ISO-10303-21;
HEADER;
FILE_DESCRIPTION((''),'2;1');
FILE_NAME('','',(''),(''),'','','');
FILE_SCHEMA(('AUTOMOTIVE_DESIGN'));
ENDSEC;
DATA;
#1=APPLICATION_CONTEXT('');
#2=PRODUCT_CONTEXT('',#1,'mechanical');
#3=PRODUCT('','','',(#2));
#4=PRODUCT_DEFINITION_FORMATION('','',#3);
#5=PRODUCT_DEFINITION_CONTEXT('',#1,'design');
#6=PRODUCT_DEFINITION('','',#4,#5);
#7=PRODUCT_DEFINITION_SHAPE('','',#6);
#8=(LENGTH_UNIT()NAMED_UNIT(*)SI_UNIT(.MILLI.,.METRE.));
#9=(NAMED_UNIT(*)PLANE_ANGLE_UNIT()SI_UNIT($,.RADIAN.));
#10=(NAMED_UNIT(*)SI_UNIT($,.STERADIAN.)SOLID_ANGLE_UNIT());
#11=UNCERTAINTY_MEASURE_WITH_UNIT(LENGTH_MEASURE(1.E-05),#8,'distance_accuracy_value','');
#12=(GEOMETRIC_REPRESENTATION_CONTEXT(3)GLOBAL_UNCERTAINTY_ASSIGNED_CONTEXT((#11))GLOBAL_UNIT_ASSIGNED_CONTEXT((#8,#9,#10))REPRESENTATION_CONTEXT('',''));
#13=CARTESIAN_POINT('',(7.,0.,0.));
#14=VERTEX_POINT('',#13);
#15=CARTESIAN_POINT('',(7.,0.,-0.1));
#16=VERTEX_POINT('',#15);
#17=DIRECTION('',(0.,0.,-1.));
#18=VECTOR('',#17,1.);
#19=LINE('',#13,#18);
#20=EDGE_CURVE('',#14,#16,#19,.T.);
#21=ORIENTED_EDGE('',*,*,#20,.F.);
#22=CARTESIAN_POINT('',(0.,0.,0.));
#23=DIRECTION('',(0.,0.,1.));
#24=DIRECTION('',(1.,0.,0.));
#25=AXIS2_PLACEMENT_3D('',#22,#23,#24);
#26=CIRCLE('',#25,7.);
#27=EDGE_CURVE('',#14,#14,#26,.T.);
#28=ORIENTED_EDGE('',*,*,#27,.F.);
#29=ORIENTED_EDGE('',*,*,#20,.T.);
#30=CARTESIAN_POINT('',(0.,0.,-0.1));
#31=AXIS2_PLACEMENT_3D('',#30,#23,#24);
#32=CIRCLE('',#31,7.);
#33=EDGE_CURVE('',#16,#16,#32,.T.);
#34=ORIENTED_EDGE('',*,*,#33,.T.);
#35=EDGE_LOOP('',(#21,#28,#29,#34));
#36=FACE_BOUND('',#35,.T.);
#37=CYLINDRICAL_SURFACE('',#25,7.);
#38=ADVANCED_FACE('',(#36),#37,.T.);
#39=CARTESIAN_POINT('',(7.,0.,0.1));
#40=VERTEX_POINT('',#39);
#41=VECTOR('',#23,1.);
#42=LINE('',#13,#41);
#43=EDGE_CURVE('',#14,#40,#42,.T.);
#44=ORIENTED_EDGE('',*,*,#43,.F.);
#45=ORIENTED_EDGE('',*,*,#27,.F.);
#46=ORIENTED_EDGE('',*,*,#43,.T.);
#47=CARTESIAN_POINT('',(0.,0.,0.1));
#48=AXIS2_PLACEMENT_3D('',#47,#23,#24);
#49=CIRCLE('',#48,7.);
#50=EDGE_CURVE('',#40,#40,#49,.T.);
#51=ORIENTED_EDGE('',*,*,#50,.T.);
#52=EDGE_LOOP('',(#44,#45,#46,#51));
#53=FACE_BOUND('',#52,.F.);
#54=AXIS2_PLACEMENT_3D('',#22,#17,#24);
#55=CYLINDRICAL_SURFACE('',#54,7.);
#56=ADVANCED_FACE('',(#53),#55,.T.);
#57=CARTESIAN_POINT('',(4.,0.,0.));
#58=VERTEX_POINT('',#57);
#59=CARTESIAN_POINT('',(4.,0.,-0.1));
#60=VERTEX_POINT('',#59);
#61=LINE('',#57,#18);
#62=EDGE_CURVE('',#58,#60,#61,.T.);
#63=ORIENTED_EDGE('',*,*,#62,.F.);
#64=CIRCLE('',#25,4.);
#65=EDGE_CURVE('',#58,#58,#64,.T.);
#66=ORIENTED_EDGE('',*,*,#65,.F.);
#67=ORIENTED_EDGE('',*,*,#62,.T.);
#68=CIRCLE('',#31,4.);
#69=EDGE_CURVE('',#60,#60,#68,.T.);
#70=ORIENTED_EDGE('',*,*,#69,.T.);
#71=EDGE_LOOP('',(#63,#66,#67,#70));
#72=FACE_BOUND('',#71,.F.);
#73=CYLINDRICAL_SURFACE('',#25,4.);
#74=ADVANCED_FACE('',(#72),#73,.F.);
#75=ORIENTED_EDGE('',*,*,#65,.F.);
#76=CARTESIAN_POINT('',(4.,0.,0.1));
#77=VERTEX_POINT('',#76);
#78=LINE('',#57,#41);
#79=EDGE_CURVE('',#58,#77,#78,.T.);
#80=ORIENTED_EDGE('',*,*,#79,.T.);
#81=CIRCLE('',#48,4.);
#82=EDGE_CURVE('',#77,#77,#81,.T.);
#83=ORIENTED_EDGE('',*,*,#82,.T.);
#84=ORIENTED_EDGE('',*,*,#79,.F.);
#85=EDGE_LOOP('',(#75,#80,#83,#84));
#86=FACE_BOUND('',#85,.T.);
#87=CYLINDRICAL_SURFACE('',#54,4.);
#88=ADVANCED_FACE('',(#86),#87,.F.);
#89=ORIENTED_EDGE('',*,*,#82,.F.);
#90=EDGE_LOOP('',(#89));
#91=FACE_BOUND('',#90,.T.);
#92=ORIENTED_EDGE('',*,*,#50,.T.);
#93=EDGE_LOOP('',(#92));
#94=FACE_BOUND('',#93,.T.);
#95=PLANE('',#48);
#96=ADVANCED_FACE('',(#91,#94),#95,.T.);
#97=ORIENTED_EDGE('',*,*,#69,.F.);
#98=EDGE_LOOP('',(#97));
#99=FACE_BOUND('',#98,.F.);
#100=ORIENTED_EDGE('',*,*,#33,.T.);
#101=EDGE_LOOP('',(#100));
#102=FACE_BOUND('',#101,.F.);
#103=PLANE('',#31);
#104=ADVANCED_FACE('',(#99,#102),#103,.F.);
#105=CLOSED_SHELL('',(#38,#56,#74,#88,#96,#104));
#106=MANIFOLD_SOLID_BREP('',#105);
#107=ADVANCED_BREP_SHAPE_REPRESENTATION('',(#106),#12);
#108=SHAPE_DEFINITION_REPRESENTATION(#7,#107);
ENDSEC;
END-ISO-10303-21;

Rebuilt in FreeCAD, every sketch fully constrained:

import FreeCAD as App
import Part
import Sketcher

V = App.Vector

doc = App.newDocument("Part")
body = doc.addObject("PartDesign::Body", "Body")

sketch1 = doc.addObject("Sketcher::SketchObject", "Sketch")
body.addObject(sketch1)
sketch1.AttachmentSupport = (doc.XY_Plane, [""])
sketch1.MapMode = "FlatFace"
sketch1.addGeometry([
    Part.Circle(V(0, 0, 0), V(0, 0, 1), 7),
    Part.Circle(V(0, 0, 0), V(0, 0, 1), 4),
], False)
sketch1.addConstraint([
    Sketcher.Constraint("Coincident", 0, 3, -1, 1),
    Sketcher.Constraint("Coincident", 1, 3, -1, 1),
    Sketcher.Constraint("Diameter", 0, 14.0),
    Sketcher.Constraint("Diameter", 1, 8.0),
])
pad1 = doc.addObject("PartDesign::Pad", "Pad")
body.addObject(pad1)
pad1.Profile = sketch1
pad1.Length = 0.2
pad1.Midplane = True

doc.recompute()
